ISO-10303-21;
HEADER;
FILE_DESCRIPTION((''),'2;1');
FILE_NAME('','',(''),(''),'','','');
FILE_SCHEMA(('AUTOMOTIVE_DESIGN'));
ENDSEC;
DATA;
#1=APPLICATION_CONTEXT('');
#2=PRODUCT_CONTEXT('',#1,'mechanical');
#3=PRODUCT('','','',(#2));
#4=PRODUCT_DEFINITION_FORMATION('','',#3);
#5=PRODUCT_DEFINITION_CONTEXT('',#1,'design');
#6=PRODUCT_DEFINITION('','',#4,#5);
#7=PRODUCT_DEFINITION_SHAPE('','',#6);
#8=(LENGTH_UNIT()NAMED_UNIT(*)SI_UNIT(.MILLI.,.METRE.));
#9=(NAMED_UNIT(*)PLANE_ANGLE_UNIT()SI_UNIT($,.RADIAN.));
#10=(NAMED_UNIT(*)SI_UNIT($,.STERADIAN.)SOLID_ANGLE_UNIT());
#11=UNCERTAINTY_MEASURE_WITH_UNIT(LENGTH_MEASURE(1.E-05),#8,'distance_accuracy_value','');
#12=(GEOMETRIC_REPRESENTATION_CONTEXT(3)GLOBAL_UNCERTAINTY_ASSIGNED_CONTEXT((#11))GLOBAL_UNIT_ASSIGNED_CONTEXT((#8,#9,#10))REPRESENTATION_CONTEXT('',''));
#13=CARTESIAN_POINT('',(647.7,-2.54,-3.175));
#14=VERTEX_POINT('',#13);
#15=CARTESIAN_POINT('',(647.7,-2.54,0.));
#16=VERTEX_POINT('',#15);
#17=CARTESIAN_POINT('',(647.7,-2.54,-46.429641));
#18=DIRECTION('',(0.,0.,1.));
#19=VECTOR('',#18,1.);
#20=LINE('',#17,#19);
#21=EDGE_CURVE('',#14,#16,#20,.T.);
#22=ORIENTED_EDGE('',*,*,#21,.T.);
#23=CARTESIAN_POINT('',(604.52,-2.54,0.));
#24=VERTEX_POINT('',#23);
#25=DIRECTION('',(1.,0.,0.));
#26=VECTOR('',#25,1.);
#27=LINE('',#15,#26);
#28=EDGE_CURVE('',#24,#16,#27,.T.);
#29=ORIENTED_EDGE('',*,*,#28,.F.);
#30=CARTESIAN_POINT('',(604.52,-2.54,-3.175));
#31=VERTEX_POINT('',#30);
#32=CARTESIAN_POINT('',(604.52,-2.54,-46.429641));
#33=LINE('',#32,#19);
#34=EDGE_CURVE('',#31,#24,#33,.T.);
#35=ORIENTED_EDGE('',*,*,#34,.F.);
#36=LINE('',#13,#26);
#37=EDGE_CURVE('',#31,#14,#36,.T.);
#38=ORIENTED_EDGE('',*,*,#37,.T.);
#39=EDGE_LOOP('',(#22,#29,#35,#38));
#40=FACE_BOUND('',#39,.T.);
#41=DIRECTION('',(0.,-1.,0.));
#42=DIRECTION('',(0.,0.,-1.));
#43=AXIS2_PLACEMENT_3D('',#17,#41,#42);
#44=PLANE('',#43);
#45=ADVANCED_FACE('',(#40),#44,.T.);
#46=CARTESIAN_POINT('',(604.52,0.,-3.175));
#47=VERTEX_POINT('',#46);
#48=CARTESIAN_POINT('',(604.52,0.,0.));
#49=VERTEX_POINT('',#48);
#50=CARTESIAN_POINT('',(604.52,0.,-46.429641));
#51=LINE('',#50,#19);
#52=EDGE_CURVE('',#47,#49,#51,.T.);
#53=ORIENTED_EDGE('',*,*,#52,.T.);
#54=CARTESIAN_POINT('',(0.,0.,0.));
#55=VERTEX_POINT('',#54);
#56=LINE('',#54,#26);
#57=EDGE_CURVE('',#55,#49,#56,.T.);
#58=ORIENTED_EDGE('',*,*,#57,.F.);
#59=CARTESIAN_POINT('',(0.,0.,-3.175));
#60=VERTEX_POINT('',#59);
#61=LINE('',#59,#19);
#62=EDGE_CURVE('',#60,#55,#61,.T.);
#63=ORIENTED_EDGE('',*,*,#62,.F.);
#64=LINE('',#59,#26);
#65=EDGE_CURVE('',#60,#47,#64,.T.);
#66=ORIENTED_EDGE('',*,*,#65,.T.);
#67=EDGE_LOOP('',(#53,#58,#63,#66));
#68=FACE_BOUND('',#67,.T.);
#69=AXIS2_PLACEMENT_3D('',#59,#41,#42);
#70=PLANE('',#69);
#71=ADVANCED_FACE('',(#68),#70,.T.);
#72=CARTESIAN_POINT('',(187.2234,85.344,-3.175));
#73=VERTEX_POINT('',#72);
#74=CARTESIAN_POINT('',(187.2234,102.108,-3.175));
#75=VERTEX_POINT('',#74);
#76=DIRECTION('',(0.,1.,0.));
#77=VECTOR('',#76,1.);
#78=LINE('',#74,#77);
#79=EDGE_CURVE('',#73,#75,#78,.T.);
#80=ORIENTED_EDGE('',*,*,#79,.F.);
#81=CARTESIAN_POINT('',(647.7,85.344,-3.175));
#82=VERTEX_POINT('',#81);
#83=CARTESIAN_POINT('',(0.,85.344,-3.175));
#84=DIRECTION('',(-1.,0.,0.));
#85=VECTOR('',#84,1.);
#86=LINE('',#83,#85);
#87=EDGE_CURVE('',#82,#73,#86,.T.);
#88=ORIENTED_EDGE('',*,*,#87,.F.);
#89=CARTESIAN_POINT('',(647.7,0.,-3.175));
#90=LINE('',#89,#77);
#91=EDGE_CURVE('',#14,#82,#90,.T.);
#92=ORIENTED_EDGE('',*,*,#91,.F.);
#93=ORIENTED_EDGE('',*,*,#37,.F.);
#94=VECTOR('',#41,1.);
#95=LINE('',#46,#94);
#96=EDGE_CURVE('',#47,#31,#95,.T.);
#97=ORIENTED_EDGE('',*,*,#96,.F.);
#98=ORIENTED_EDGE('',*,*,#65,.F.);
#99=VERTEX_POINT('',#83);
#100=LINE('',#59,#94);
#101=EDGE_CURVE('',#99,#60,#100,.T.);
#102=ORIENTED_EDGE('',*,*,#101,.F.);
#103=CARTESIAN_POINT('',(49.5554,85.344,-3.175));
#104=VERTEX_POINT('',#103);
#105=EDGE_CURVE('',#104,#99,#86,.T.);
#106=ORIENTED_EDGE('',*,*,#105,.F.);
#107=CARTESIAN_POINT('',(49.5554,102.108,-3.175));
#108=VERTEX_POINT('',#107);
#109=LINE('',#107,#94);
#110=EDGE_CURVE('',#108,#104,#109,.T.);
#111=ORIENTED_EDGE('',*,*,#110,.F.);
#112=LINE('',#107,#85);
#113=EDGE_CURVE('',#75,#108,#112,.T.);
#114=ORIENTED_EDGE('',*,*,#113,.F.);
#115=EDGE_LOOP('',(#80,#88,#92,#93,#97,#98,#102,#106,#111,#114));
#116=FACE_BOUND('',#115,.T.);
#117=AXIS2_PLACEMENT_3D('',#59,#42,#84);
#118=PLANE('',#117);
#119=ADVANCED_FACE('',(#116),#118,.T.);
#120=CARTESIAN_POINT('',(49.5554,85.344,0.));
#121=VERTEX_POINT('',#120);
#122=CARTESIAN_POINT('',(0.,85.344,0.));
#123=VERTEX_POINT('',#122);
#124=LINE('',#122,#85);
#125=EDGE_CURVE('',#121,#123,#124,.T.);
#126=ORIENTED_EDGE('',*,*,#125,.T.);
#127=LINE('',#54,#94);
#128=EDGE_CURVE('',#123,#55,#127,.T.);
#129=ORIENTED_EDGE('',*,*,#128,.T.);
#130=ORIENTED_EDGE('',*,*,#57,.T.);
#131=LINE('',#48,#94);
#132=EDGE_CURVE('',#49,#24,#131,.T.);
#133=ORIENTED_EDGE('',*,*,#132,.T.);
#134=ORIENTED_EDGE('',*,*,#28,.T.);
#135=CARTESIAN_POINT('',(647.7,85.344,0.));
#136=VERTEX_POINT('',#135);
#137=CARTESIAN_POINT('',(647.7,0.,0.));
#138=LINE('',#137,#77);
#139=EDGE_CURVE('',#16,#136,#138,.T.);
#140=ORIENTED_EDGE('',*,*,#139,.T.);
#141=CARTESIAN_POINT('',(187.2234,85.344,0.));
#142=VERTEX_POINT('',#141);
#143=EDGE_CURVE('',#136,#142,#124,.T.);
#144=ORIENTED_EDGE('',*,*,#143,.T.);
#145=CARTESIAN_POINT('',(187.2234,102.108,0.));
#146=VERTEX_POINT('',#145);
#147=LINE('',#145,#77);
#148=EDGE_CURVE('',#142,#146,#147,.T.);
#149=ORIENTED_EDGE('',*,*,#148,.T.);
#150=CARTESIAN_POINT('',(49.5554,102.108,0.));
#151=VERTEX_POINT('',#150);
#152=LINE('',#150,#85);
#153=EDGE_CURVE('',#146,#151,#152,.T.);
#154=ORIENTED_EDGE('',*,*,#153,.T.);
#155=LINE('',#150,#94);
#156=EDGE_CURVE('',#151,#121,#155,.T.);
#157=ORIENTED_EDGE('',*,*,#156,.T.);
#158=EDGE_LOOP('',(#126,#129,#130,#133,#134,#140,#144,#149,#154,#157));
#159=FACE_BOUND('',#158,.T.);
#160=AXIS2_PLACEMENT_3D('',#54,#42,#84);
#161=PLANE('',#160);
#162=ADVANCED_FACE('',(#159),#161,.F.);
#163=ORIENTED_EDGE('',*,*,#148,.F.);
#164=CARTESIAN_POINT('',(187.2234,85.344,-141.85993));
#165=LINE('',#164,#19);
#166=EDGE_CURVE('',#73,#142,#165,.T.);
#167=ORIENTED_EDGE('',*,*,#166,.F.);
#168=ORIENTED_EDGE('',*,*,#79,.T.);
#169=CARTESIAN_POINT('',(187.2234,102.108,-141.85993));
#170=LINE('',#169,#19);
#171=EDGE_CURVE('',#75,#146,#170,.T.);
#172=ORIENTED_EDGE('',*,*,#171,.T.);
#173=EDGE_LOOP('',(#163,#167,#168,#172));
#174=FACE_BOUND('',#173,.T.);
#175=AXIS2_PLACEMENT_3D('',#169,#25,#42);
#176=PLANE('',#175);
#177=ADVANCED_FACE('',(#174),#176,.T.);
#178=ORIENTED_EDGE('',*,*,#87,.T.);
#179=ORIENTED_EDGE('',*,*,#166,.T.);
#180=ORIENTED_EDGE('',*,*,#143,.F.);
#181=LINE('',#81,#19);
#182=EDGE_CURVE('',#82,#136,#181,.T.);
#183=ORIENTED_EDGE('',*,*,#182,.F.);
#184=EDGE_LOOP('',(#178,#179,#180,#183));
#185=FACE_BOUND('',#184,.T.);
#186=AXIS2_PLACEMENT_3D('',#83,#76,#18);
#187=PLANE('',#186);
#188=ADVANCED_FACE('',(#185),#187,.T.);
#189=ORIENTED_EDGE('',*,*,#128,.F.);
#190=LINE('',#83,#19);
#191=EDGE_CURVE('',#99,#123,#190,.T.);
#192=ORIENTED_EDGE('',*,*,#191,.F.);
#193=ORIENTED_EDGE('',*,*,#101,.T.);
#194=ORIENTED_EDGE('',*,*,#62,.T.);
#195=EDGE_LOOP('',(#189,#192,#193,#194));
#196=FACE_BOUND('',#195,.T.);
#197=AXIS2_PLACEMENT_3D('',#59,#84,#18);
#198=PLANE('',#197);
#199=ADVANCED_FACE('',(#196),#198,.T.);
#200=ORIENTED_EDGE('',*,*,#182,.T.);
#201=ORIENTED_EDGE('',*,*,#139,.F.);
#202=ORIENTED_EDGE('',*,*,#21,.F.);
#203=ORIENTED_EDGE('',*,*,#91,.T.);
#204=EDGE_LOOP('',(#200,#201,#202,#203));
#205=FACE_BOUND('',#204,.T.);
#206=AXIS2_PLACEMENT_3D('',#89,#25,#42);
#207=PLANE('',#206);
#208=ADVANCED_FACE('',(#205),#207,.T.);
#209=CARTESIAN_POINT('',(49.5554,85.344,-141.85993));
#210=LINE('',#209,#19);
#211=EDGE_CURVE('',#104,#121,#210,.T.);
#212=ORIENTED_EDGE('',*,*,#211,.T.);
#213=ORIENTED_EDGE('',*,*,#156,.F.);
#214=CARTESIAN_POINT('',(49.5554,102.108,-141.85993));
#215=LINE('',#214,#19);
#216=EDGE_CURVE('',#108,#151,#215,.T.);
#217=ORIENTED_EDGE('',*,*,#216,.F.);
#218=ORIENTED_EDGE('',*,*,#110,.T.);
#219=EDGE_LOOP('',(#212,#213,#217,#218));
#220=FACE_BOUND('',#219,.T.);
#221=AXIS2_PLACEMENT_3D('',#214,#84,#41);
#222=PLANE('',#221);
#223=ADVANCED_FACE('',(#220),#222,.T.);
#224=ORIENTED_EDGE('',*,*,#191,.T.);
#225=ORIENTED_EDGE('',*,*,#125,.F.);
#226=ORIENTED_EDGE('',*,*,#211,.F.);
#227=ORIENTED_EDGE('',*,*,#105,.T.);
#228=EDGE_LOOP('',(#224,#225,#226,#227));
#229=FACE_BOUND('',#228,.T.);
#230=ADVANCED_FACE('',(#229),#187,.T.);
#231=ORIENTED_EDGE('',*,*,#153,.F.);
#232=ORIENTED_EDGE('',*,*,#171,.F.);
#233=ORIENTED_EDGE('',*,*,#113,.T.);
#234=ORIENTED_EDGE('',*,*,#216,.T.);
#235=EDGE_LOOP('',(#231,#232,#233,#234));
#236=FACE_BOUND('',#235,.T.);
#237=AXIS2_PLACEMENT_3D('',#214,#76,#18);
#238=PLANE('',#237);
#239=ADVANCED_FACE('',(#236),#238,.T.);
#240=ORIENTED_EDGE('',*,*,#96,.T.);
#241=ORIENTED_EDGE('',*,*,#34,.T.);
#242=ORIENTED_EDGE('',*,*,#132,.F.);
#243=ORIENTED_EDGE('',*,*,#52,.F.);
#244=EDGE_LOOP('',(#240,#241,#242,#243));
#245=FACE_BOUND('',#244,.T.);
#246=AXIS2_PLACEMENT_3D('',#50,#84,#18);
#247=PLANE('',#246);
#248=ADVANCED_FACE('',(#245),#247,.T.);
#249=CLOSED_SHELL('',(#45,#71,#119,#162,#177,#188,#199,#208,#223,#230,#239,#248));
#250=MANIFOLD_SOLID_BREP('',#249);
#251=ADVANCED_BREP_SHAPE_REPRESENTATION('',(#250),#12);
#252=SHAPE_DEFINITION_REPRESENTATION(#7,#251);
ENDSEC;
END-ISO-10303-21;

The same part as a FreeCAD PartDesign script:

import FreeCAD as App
import Part
import Sketcher
Q = App.Units.Quantity


def add_polygon(sketch, points):
    """Adds a closed chain of lines whose ends are joined by coincident constraints."""
    first, n = sketch.GeometryCount, len(points)
    for a, b in zip(points, points[1:] + points[:1]):
        sketch.addGeometry(Part.LineSegment(App.Vector(*a, 0), App.Vector(*b, 0)), False)
    for i in range(n):
        sketch.addConstraint(Sketcher.Constraint("Coincident", first + i, 2, first + (i + 1) % n, 1))

doc = App.newDocument("Part")
body = doc.addObject("PartDesign::Body", "Body")

sketch1 = body.newObject("Sketcher::SketchObject", "Sketch")
sketch1.AttachmentSupport = (doc.getObject("XY_Plane"), [""])
sketch1.MapMode = "FlatFace"
add_polygon(sketch1, [(0, 85), (0, 0), (648, 0), (648, 85)])
sketch1.addConstraint(Sketcher.Constraint("Vertical", 0))
sketch1.addConstraint(Sketcher.Constraint("Horizontal", 1))
sketch1.addConstraint(Sketcher.Constraint("Vertical", 2))
sketch1.addConstraint(Sketcher.Constraint("Horizontal", 3))
sketch1.addConstraint(Sketcher.Constraint("Coincident", 0, 2, -1, 1))
sketch1.addConstraint(Sketcher.Constraint("DistanceX", 1, 1, 1, 2, Q("25.5 in")))
sketch1.addConstraint(Sketcher.Constraint("DistanceY", 0, 2, 0, 1, Q("3.36 in")))
pad1 = body.newObject("PartDesign::Pad", "Pad")
pad1.Profile = sketch1
pad1.Length = Q("0.125 in")
pad1.Reversed = True

sketch2 = body.newObject("Sketcher::SketchObject", "Sketch001")
sketch2.AttachmentSupport = (doc.getObject("XY_Plane"), [""])
sketch2.MapMode = "FlatFace"
add_polygon(sketch2, [(604.5, 0), (604.5, -2.5), (647.7, -2.5), (647.7, 0)])
sketch2.addConstraint(Sketcher.Constraint("Vertical", 0))
sketch2.addConstraint(Sketcher.Constraint("Horizontal", 1))
sketch2.addConstraint(Sketcher.Constraint("Vertical", 2))
sketch2.addConstraint(Sketcher.Constraint("Horizontal", 3))
sketch2.addConstraint(Sketcher.Constraint("PointOnObject", 2, 2, -1))
sketch2.addConstraint(Sketcher.Constraint("DistanceX", 1, 1, 1, 2, Q("1.7 in")))
sketch2.addConstraint(Sketcher.Constraint("DistanceY", 0, 2, 0, 1, Q("0.1 in")))
sketch2.addConstraint(Sketcher.Constraint("DistanceX", -1, 1, 0, 2, Q("23.8 in")))
pad2 = body.newObject("PartDesign::Pad", "Pad001")
pad2.Profile = sketch2
pad2.Length = Q("0.125 in")
pad2.Reversed = True

sketch3 = body.newObject("Sketcher::SketchObject", "Sketch002")
sketch3.AttachmentSupport = (doc.getObject("XY_Plane"), [""])
sketch3.MapMode = "FlatFace"
add_polygon(sketch3, [(50, 102), (50, 85), (187, 85), (187, 102)])
sketch3.addConstraint(Sketcher.Constraint("Vertical", 0))
sketch3.addConstraint(Sketcher.Constraint("Horizontal", 1))
sketch3.addConstraint(Sketcher.Constraint("Vertical", 2))
sketch3.addConstraint(Sketcher.Constraint("Horizontal", 3))
sketch3.addConstraint(Sketcher.Constraint("DistanceX", 1, 1, 1, 2, Q("5.42 in")))
sketch3.addConstraint(Sketcher.Constraint("DistanceY", 0, 2, 0, 1, Q("0.66 in")))
sketch3.addConstraint(Sketcher.Constraint("DistanceY", -1, 1, 0, 2, Q("3.36 in")))
sketch3.addConstraint(Sketcher.Constraint("DistanceX", -1, 1, 0, 2, Q("1.951 in")))
pad3 = body.newObject("PartDesign::Pad", "Pad002")
pad3.Profile = sketch3
pad3.Length = Q("0.125 in")
pad3.Reversed = True

doc.recompute()
